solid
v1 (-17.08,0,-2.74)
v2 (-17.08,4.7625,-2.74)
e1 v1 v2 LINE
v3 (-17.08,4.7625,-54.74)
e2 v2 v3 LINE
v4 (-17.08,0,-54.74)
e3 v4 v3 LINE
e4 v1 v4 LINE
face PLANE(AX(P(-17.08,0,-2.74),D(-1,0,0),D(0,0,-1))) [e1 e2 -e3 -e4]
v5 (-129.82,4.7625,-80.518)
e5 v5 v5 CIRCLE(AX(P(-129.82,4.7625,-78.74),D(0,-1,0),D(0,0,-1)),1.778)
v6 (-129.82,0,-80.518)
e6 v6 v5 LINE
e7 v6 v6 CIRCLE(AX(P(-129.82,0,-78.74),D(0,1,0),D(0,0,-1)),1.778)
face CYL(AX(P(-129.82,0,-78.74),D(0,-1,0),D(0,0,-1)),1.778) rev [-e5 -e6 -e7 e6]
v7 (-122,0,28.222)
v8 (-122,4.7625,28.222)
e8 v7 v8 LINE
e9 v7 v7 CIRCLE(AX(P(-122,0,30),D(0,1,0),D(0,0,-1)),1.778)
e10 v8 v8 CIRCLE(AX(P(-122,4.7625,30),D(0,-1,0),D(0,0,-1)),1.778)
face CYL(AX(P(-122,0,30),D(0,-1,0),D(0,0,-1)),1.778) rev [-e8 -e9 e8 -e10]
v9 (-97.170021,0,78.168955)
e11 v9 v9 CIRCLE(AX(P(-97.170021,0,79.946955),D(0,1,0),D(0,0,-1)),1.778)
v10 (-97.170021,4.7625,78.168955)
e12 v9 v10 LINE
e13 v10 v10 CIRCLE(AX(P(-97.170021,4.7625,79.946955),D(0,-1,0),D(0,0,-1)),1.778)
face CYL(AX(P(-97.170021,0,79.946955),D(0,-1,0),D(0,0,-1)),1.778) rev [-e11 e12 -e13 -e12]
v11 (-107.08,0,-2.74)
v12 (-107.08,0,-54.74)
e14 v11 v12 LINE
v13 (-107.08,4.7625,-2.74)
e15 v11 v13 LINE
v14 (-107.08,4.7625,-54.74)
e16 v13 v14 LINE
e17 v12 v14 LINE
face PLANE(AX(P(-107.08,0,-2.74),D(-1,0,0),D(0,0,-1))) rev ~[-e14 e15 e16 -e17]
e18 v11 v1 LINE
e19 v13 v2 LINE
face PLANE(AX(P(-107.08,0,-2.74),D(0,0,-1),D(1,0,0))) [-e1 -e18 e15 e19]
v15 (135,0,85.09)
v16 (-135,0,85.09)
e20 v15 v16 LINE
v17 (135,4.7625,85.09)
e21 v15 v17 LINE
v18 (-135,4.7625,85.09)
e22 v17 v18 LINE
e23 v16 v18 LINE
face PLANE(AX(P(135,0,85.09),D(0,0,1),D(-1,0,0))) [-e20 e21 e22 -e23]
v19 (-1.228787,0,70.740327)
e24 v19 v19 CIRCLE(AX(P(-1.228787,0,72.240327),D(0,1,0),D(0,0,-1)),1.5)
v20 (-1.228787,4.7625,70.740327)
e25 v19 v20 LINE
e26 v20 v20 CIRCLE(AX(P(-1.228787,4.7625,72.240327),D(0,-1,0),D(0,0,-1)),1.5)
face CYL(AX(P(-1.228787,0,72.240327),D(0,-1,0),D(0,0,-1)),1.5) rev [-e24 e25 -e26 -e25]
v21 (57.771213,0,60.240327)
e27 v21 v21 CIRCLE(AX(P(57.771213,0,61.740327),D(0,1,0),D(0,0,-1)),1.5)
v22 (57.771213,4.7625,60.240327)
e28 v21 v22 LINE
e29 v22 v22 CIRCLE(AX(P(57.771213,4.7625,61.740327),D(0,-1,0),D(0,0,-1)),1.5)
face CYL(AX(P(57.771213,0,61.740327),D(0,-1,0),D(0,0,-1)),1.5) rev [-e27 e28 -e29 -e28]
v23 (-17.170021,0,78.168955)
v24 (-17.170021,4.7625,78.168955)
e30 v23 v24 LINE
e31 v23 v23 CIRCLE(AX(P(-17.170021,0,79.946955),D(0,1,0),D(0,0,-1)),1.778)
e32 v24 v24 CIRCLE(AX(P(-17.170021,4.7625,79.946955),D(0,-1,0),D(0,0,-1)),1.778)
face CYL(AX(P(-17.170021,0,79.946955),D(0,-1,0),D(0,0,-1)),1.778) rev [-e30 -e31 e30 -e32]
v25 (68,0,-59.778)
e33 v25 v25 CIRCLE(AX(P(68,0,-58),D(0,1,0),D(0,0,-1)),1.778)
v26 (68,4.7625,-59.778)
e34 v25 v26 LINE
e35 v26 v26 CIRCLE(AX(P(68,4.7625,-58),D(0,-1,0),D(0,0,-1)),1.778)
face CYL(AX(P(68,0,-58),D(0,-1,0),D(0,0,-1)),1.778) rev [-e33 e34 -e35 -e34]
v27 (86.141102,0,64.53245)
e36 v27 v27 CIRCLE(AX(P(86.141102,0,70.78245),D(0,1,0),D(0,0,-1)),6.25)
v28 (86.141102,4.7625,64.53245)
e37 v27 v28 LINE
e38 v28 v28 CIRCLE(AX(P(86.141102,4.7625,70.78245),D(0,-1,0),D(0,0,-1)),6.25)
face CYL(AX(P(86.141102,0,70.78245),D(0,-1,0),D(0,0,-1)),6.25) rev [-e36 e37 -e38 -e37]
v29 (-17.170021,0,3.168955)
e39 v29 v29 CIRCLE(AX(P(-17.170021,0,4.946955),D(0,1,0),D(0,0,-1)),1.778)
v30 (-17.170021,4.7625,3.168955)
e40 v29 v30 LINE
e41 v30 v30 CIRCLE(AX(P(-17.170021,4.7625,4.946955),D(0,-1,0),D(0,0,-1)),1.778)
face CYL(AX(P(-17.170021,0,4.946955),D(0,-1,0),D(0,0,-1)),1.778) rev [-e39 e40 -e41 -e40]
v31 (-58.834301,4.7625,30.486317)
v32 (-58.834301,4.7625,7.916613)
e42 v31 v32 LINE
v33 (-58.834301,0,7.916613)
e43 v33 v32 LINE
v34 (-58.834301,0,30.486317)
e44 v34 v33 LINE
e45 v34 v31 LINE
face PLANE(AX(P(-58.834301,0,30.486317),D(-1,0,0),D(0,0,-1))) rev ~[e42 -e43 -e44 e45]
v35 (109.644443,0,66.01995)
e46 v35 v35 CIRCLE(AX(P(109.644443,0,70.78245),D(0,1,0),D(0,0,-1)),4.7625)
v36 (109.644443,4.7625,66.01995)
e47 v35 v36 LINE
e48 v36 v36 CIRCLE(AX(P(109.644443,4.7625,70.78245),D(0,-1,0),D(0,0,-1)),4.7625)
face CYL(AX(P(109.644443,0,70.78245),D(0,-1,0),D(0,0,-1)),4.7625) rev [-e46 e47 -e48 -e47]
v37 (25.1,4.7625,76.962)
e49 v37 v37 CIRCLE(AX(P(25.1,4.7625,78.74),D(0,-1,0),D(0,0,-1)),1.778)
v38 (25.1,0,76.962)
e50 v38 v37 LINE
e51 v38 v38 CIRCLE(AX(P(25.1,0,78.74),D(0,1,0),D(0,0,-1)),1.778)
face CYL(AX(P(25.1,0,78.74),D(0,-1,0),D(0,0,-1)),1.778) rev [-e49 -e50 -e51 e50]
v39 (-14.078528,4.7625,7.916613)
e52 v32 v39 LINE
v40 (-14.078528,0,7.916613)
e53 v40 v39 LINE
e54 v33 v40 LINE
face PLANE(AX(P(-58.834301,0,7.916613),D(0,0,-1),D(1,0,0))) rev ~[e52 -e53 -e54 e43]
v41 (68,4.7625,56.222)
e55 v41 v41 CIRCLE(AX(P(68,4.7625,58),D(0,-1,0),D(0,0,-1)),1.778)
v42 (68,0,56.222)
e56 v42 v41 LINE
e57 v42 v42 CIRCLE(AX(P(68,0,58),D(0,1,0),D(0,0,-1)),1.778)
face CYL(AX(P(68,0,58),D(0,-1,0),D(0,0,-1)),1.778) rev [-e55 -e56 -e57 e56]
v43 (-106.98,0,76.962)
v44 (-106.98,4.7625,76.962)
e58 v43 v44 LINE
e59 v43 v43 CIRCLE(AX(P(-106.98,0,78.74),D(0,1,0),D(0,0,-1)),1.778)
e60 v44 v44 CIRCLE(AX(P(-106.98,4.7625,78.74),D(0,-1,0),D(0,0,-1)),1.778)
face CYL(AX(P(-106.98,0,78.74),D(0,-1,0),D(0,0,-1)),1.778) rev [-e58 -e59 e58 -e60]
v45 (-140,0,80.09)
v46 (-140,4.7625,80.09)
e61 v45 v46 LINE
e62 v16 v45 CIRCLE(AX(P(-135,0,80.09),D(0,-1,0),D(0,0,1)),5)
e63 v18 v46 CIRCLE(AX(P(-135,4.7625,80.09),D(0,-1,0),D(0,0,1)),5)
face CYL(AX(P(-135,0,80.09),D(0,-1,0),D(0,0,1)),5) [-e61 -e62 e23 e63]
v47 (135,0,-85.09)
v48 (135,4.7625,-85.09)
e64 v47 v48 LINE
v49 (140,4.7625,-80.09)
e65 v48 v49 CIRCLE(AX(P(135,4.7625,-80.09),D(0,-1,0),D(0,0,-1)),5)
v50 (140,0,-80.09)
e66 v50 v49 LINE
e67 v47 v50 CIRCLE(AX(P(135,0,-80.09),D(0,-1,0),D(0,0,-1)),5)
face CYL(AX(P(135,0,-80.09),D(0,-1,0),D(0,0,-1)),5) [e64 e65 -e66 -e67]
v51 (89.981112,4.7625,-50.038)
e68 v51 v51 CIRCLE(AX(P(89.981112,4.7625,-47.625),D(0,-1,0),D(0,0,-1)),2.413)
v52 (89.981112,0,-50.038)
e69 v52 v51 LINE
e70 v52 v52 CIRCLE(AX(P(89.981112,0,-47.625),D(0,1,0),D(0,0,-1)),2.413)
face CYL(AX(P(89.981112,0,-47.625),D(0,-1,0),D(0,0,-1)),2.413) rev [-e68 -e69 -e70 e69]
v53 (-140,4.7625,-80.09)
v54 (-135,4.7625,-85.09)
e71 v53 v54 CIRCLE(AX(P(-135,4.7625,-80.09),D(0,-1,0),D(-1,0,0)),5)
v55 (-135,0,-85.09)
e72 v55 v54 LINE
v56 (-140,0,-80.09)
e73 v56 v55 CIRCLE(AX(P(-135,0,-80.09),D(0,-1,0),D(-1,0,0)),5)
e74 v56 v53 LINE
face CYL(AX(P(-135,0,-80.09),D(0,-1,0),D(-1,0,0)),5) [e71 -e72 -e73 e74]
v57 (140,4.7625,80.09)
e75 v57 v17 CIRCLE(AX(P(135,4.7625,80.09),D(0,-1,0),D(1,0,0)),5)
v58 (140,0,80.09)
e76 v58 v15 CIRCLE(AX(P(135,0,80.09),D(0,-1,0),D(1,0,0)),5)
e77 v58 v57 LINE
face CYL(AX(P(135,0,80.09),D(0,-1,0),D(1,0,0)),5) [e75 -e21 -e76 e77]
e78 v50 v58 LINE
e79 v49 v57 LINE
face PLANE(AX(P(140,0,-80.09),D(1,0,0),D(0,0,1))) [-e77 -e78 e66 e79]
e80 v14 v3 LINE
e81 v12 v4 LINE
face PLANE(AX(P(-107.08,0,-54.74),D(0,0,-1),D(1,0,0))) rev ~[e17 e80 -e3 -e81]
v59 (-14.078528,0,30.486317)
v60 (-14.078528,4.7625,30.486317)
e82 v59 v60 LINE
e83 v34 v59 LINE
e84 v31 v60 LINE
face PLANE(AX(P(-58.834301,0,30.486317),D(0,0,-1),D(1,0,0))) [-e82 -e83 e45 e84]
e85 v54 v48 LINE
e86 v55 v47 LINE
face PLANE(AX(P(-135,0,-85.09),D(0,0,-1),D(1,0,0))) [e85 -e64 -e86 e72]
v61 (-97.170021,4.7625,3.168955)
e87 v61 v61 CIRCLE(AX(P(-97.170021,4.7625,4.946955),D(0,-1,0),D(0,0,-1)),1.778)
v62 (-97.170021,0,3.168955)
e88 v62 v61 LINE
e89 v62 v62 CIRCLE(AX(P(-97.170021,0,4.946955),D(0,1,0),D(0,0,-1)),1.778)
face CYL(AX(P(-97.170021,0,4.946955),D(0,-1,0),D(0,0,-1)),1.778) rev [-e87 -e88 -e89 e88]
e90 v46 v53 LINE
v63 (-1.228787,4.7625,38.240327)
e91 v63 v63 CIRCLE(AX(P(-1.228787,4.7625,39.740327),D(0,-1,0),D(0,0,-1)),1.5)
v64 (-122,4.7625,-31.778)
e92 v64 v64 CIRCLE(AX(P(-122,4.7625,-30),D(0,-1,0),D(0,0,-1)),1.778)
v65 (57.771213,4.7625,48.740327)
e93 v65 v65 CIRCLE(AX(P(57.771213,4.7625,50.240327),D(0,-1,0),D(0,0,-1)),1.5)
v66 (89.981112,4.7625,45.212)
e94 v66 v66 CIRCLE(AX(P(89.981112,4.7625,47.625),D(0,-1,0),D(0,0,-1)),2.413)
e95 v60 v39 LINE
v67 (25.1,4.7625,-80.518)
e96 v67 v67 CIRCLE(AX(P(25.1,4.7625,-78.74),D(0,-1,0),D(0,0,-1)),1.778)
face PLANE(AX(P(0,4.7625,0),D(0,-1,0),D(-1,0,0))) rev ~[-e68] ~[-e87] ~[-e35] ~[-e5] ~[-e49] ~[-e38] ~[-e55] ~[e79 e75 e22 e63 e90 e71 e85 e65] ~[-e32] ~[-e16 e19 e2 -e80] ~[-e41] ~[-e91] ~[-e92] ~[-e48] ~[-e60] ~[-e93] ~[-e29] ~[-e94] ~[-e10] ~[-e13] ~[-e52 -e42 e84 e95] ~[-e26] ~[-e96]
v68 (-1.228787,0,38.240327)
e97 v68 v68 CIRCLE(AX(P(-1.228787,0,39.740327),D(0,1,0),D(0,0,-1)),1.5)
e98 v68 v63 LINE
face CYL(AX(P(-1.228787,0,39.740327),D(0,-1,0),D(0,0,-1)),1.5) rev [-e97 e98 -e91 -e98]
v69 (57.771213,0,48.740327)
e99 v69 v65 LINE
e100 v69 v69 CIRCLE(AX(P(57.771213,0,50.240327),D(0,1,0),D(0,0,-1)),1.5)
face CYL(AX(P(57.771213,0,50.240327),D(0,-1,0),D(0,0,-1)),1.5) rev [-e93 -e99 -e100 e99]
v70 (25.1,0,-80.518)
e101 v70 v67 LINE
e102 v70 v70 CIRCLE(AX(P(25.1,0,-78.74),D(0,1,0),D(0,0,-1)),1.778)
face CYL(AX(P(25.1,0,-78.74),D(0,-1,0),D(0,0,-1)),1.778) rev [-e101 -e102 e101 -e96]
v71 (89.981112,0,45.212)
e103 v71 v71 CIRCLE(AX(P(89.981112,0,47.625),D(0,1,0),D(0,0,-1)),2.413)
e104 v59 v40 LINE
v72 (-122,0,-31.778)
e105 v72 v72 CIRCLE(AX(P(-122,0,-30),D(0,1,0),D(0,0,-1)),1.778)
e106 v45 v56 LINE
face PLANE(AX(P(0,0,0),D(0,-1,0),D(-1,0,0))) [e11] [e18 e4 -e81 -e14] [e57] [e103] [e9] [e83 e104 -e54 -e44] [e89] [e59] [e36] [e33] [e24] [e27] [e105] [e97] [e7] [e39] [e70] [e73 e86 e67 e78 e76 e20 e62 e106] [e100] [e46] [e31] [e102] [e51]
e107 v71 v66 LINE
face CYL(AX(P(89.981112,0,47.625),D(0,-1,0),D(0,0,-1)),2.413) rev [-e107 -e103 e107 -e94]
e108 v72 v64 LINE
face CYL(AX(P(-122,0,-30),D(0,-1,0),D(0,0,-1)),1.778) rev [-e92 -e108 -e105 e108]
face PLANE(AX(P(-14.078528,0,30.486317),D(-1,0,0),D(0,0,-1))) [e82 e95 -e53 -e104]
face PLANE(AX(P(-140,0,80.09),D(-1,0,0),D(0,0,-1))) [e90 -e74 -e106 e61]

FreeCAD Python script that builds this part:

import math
import FreeCAD as App
import Part
import Sketcher
Q = App.Units.Quantity


def add_polygon(sketch, points):
    """Adds a closed chain of lines whose ends are joined by coincident constraints."""
    first, n = sketch.GeometryCount, len(points)
    for a, b in zip(points, points[1:] + points[:1]):
        sketch.addGeometry(Part.LineSegment(App.Vector(*a, 0), App.Vector(*b, 0)), False)
    for i in range(n):
        sketch.addConstraint(Sketcher.Constraint("Coincident", first + i, 2, first + (i + 1) % n, 1))

doc = App.newDocument("Part")
body = doc.addObject("PartDesign::Body", "Body")

# Sketch on XZ plane
sketch1 = body.newObject("Sketcher::SketchObject", "Sketch")
sketch1.AttachmentSupport = (doc.getObject("XZ_Plane"), [""])
sketch1.MapMode = "FlatFace"
sketch1.addGeometry(Part.LineSegment(App.Vector(135, -85, 0), App.Vector(-135, -85, 0)), False)
sketch1.addGeometry(Part.ArcOfCircle(Part.Circle(App.Vector(-135, -80, 0), App.Vector(0, 0, 1), 5), math.radians(180), math.radians(270)), False)
sketch1.addGeometry(Part.LineSegment(App.Vector(-140, -80, 0), App.Vector(-140, 80, 0)), False)
sketch1.addGeometry(Part.ArcOfCircle(Part.Circle(App.Vector(-135, 80, 0), App.Vector(0, 0, 1), 5), math.radians(90), math.radians(180)), False)
sketch1.addGeometry(Part.LineSegment(App.Vector(-135, 85, 0), App.Vector(135, 85, 0)), False)
sketch1.addGeometry(Part.ArcOfCircle(Part.Circle(App.Vector(135, 80, 0), App.Vector(0, 0, 1), 5), math.radians(0), math.radians(90)), False)
sketch1.addGeometry(Part.LineSegment(App.Vector(140, 80, 0), App.Vector(140, -80, 0)), False)
sketch1.addGeometry(Part.ArcOfCircle(Part.Circle(App.Vector(135, -80, 0), App.Vector(0, 0, 1), 5), math.radians(-90), math.radians(0)), False)
sketch1.addConstraint(Sketcher.Constraint("Tangent", 0, 2, 1, 2))
sketch1.addConstraint(Sketcher.Constraint("Tangent", 1, 1, 2, 1))
sketch1.addConstraint(Sketcher.Constraint("Tangent", 2, 2, 3, 2))
sketch1.addConstraint(Sketcher.Constraint("Tangent", 3, 1, 4, 1))
sketch1.addConstraint(Sketcher.Constraint("Tangent", 4, 2, 5, 2))
sketch1.addConstraint(Sketcher.Constraint("Tangent", 5, 1, 6, 1))
sketch1.addConstraint(Sketcher.Constraint("Tangent", 6, 2, 7, 2))
sketch1.addConstraint(Sketcher.Constraint("Tangent", 7, 1, 0, 1))
sketch1.addConstraint(Sketcher.Constraint("Horizontal", 0))
sketch1.addConstraint(Sketcher.Constraint("Vertical", 2))
sketch1.addConstraint(Sketcher.Constraint("Horizontal", 4))
sketch1.addConstraint(Sketcher.Constraint("Vertical", 6))
sketch1.addConstraint(Sketcher.Constraint("Equal", 1, 3))
sketch1.addConstraint(Sketcher.Constraint("Equal", 3, 5))
sketch1.addConstraint(Sketcher.Constraint("Equal", 5, 7))
sketch1.addConstraint(Sketcher.Constraint("Symmetric", 1, 3, 5, 3, -1, 1))
sketch1.addConstraint(Sketcher.Constraint("Radius", 1, Q("5 mm")))
sketch1.addConstraint(Sketcher.Constraint("DistanceX", 0, 2, 0, 1, Q("270 mm")))
sketch1.addConstraint(Sketcher.Constraint("DistanceY", 2, 1, 2, 2, Q("160.18 mm")))
pad1 = body.newObject("PartDesign::Pad", "Pad")
pad1.Profile = sketch1
pad1.Length = 4.7625
pad1.Reversed = True

# Sketch on XZ plane
sketch2 = body.newObject("Sketcher::SketchObject", "Sketch001")
sketch2.AttachmentSupport = (doc.getObject("XZ_Plane"), [""])
sketch2.MapMode = "FlatFace"
sketch2.addGeometry(Part.Circle(App.Vector(68, -58, 0), App.Vector(0, 0, 1), 1.8), False)
sketch2.addGeometry(Part.Circle(App.Vector(68, 58, 0), App.Vector(0, 0, 1), 1.8), False)
sketch2.addGeometry(Part.Circle(App.Vector(-122, -30, 0), App.Vector(0, 0, 1), 1.8), False)
sketch2.addGeometry(Part.Circle(App.Vector(-122, 30, 0), App.Vector(0, 0, 1), 1.8), False)
sketch2.addConstraint(Sketcher.Constraint("Equal", 0, 1))
sketch2.addConstraint(Sketcher.Constraint("Equal", 1, 2))
sketch2.addConstraint(Sketcher.Constraint("Equal", 2, 3))
sketch2.addConstraint(Sketcher.Constraint("Symmetric", 0, 3, 1, 3, -1))
sketch2.addConstraint(Sketcher.Constraint("Symmetric", 2, 3, 3, 3, -1))
sketch2.addConstraint(Sketcher.Constraint("Diameter", 0, Q("3.556 mm")))
sketch2.addConstraint(Sketcher.Constraint("DistanceX", -1, 1, 0, 3, Q("68 mm")))
sketch2.addConstraint(Sketcher.Constraint("DistanceY", 0, 3, -1, 1, Q("58 mm")))
sketch2.addConstraint(Sketcher.Constraint("DistanceX", 2, 3, -1, 1, Q("122 mm")))
sketch2.addConstraint(Sketcher.Constraint("DistanceY", 2, 3, -1, 1, Q("30 mm")))
pocket1 = body.newObject("PartDesign::Pocket", "Pocket")
pocket1.Profile = sketch2
pocket1.Type = "ThroughAll"

# Sketch on XZ plane
sketch3 = body.newObject("Sketcher::SketchObject", "Sketch002")
sketch3.AttachmentSupport = (doc.getObject("XZ_Plane"), [""])
sketch3.MapMode = "FlatFace"
sketch3.addGeometry(Part.Circle(App.Vector(57.8, 50.2, 0), App.Vector(0, 0, 1), 1.5), False)
sketch3.addGeometry(Part.Circle(App.Vector(57.8, 61.7, 0), App.Vector(0, 0, 1), 1.5), False)
sketch3.addGeometry(Part.Circle(App.Vector(-1.2, 39.7, 0), App.Vector(0, 0, 1), 1.5), False)
sketch3.addGeometry(Part.Circle(App.Vector(-1.2, 72.2, 0), App.Vector(0, 0, 1), 1.5), False)
sketch3.addConstraint(Sketcher.Constraint("Equal", 0, 1))
sketch3.addConstraint(Sketcher.Constraint("Equal", 1, 2))
sketch3.addConstraint(Sketcher.Constraint("Equal", 2, 3))
sketch3.addConstraint(Sketcher.Constraint("Vertical", 0, 3, 1, 3))
sketch3.addConstraint(Sketcher.Constraint("Vertical", 2, 3, 3, 3))
sketch3.addConstraint(Sketcher.Constraint("Diameter", 0, Q("3 mm")))
sketch3.addConstraint(Sketcher.Constraint("DistanceX", 2, 3, 0, 3, Q("59 mm")))
sketch3.addConstraint(Sketcher.Constraint("DistanceY", 2, 3, 1, 3, Q("22 mm")))
sketch3.addConstraint(Sketcher.Constraint("DistanceY", 0, 3, 3, 3, Q("22 mm")))
sketch3.addConstraint(Sketcher.Constraint("DistanceY", 0, 3, 1, 3, Q("11.5 mm")))
sketch3.addConstraint(Sketcher.Constraint("DistanceX", -1, 1, 0, 3, Q("57.771213 mm")))
sketch3.addConstraint(Sketcher.Constraint("DistanceY", -1, 1, 0, 3, Q("50.240327 mm")))
pocket2 = body.newObject("PartDesign::Pocket", "Pocket001")
pocket2.Profile = sketch3
pocket2.Type = "ThroughAll"

# Sketch on XZ plane
sketch4 = body.newObject("Sketcher::SketchObject", "Sketch003")
sketch4.AttachmentSupport = (doc.getObject("XZ_Plane"), [""])
sketch4.MapMode = "FlatFace"
sketch4.addGeometry(Part.Circle(App.Vector(-97.2, 4.9, 0), App.Vector(0, 0, 1), 1.8), False)  # 0
sketch4.addGeometry(Part.Circle(App.Vector(-17.2, 4.9, 0), App.Vector(0, 0, 1), 1.8), False)  # 1
sketch4.addGeometry(Part.Circle(App.Vector(-17.2, 79.9, 0), App.Vector(0, 0, 1), 1.8), False)  # 2
sketch4.addGeometry(Part.Circle(App.Vector(-97.2, 79.9, 0), App.Vector(0, 0, 1), 1.8), False)  # 3
add_polygon(sketch4, [(-58.8, 7.9), (-58.8, 30.5), (-14.1, 30.5), (-14.1, 7.9)])  # lines 4-7
sketch4.addConstraint(Sketcher.Constraint("Vertical", 4))
sketch4.addConstraint(Sketcher.Constraint("Horizontal", 5))
sketch4.addConstraint(Sketcher.Constraint("Vertical", 6))
sketch4.addConstraint(Sketcher.Constraint("Horizontal", 7))
sketch4.addConstraint(Sketcher.Constraint("Equal", 0, 1))
sketch4.addConstraint(Sketcher.Constraint("Equal", 1, 2))
sketch4.addConstraint(Sketcher.Constraint("Equal", 2, 3))
sketch4.addConstraint(Sketcher.Constraint("Horizontal", 0, 3, 1, 3))
sketch4.addConstraint(Sketcher.Constraint("Horizontal", 2, 3, 3, 3))
sketch4.addConstraint(Sketcher.Constraint("Vertical", 1, 3, 2, 3))
sketch4.addConstraint(Sketcher.Constraint("Vertical", 0, 3, 3, 3))
sketch4.addConstraint(Sketcher.Constraint("Diameter", 0, Q("3.556 mm")))
sketch4.addConstraint(Sketcher.Constraint("DistanceX", 0, 3, 1, 3, Q("80 mm")))
sketch4.addConstraint(Sketcher.Constraint("DistanceY", 1, 3, 2, 3, Q("75 mm")))
sketch4.addConstraint(Sketcher.Constraint("DistanceX", 4, 2, -1, 1, Q("58.834301 mm")))
sketch4.addConstraint(Sketcher.Constraint("DistanceX", 5, 1, 5, 2, Q("44.755773 mm")))
sketch4.addConstraint(Sketcher.Constraint("DistanceY", 4, 1, 4, 2, Q("22.569704 mm")))
sketch4.addConstraint(Sketcher.Constraint("DistanceX", 0, 3, -1, 1, Q("97.170021 mm")))
sketch4.addConstraint(Sketcher.Constraint("DistanceY", 1, 3, 6, 2, Q("2.969658 mm")))
sketch4.addConstraint(Sketcher.Constraint("DistanceY", -1, 1, 0, 3, Q("4.946955 mm")))
pocket3 = body.newObject("PartDesign::Pocket", "Pocket002")
pocket3.Profile = sketch4
pocket3.Type = "ThroughAll"

# Sketch on XZ plane
sketch5 = body.newObject("Sketcher::SketchObject", "Sketch004")
sketch5.AttachmentSupport = (doc.getObject("XZ_Plane"), [""])
sketch5.MapMode = "FlatFace"
add_polygon(sketch5, [(-107, -55), (-107, -3), (-17, -3), (-17, -55)])  # lines 0-3
sketch5.addConstraint(Sketcher.Constraint("Vertical", 0))
sketch5.addConstraint(Sketcher.Constraint("Horizontal", 1))
sketch5.addConstraint(Sketcher.Constraint("Vertical", 2))
sketch5.addConstraint(Sketcher.Constraint("Horizontal", 3))
sketch5.addConstraint(Sketcher.Constraint("DistanceX", 1, 1, 1, 2, Q("90 mm")))
sketch5.addConstraint(Sketcher.Constraint("DistanceY", 0, 1, 0, 2, Q("52 mm")))
sketch5.addConstraint(Sketcher.Constraint("DistanceX", 0, 2, -1, 1, Q("107.08 mm")))
sketch5.addConstraint(Sketcher.Constraint("DistanceY", 0, 2, -1, 1, Q("2.74 mm")))
pocket4 = body.newObject("PartDesign::Pocket", "Pocket003")
pocket4.Profile = sketch5
pocket4.Type = "ThroughAll"

# Sketch on XZ plane
sketch6 = body.newObject("Sketcher::SketchObject", "Sketch005")
sketch6.AttachmentSupport = (doc.getObject("XZ_Plane"), [""])
sketch6.MapMode = "FlatFace"
sketch6.addGeometry(Part.Circle(App.Vector(-129.8, -78.7, 0), App.Vector(0, 0, 1), 1.8), False)
sketch6.addGeometry(Part.Circle(App.Vector(-107, 78.7, 0), App.Vector(0, 0, 1), 1.8), False)
sketch6.addGeometry(Part.Circle(App.Vector(25.1, -78.7, 0), App.Vector(0, 0, 1), 1.8), False)
sketch6.addGeometry(Part.Circle(App.Vector(25.1, 78.7, 0), App.Vector(0, 0, 1), 1.8), False)
sketch6.addConstraint(Sketcher.Constraint("Equal", 0, 1))
sketch6.addConstraint(Sketcher.Constraint("Equal", 1, 2))
sketch6.addConstraint(Sketcher.Constraint("Equal", 2, 3))
sketch6.addConstraint(Sketcher.Constraint("Symmetric", 2, 3, 3, 3, -1))
sketch6.addConstraint(Sketcher.Constraint("Horizontal", 0, 3, 2, 3))
sketch6.addConstraint(Sketcher.Constraint("Horizontal", 1, 3, 3, 3))
sketch6.addConstraint(Sketcher.Constraint("Diameter", 0, Q("3.556 mm")))
sketch6.addConstraint(Sketcher.Constraint("DistanceX", -1, 1, 2, 3, Q("25.1 mm")))
sketch6.addConstraint(Sketcher.Constraint("DistanceX", 0, 3, -1, 1, Q("129.82 mm")))
sketch6.addConstraint(Sketcher.Constraint("DistanceY", 0, 3, -1, 1, Q("78.74 mm")))
sketch6.addConstraint(Sketcher.Constraint("DistanceX", 1, 3, -1, 1, Q("106.98 mm")))
pocket5 = body.newObject("PartDesign::Pocket", "Pocket004")
pocket5.Profile = sketch6
pocket5.Type = "ThroughAll"

# Sketch on XZ plane
sketch7 = body.newObject("Sketcher::SketchObject", "Sketch006")
sketch7.AttachmentSupport = (doc.getObject("XZ_Plane"), [""])
sketch7.MapMode = "FlatFace"
sketch7.addGeometry(Part.Circle(App.Vector(90, -47.6, 0), App.Vector(0, 0, 1), 2.4), False)
sketch7.addGeometry(Part.Circle(App.Vector(90, 47.6, 0), App.Vector(0, 0, 1), 2.4), False)
sketch7.addConstraint(Sketcher.Constraint("Equal", 0, 1))
sketch7.addConstraint(Sketcher.Constraint("Symmetric", 0, 3, 1, 3, -1))
sketch7.addConstraint(Sketcher.Constraint("Diameter", 0, Q("4.826 mm")))
sketch7.addConstraint(Sketcher.Constraint("DistanceY", 0, 3, 1, 3, Q("95.25 mm")))
sketch7.addConstraint(Sketcher.Constraint("DistanceX", -1, 1, 0, 3, Q("89.981112 mm")))
pocket6 = body.newObject("PartDesign::Pocket", "Pocket005")
pocket6.Profile = sketch7
pocket6.Type = "ThroughAll"

# Sketch on XZ plane
sketch8 = body.newObject("Sketcher::SketchObject", "Sketch007")
sketch8.AttachmentSupport = (doc.getObject("XZ_Plane"), [""])
sketch8.MapMode = "FlatFace"
sketch8.addGeometry(Part.Circle(App.Vector(86.1, 70.8, 0), App.Vector(0, 0, 1), 6.2), False)
sketch8.addGeometry(Part.Circle(App.Vector(109.6, 70.8, 0), App.Vector(0, 0, 1), 4.8), False)
sketch8.addConstraint(Sketcher.Constraint("Horizontal", 0, 3, 1, 3))
sketch8.addConstraint(Sketcher.Constraint("Diameter", 0, Q("12.5 mm")))
sketch8.addConstraint(Sketcher.Constraint("Diameter", 1, Q("9.525 mm")))
sketch8.addConstraint(Sketcher.Constraint("DistanceY", -1, 1, 0, 3, Q("70.78245 mm")))
sketch8.addConstraint(Sketcher.Constraint("DistanceX", 0, 3, 1, 3, Q("23.503341 mm")))
sketch8.addConstraint(Sketcher.Constraint("DistanceX", -1, 1, 0, 3, Q("86.141102 mm")))
pocket7 = body.newObject("PartDesign::Pocket", "Pocket006")
pocket7.Profile = sketch8
pocket7.Type = "ThroughAll"

doc.recompute()
